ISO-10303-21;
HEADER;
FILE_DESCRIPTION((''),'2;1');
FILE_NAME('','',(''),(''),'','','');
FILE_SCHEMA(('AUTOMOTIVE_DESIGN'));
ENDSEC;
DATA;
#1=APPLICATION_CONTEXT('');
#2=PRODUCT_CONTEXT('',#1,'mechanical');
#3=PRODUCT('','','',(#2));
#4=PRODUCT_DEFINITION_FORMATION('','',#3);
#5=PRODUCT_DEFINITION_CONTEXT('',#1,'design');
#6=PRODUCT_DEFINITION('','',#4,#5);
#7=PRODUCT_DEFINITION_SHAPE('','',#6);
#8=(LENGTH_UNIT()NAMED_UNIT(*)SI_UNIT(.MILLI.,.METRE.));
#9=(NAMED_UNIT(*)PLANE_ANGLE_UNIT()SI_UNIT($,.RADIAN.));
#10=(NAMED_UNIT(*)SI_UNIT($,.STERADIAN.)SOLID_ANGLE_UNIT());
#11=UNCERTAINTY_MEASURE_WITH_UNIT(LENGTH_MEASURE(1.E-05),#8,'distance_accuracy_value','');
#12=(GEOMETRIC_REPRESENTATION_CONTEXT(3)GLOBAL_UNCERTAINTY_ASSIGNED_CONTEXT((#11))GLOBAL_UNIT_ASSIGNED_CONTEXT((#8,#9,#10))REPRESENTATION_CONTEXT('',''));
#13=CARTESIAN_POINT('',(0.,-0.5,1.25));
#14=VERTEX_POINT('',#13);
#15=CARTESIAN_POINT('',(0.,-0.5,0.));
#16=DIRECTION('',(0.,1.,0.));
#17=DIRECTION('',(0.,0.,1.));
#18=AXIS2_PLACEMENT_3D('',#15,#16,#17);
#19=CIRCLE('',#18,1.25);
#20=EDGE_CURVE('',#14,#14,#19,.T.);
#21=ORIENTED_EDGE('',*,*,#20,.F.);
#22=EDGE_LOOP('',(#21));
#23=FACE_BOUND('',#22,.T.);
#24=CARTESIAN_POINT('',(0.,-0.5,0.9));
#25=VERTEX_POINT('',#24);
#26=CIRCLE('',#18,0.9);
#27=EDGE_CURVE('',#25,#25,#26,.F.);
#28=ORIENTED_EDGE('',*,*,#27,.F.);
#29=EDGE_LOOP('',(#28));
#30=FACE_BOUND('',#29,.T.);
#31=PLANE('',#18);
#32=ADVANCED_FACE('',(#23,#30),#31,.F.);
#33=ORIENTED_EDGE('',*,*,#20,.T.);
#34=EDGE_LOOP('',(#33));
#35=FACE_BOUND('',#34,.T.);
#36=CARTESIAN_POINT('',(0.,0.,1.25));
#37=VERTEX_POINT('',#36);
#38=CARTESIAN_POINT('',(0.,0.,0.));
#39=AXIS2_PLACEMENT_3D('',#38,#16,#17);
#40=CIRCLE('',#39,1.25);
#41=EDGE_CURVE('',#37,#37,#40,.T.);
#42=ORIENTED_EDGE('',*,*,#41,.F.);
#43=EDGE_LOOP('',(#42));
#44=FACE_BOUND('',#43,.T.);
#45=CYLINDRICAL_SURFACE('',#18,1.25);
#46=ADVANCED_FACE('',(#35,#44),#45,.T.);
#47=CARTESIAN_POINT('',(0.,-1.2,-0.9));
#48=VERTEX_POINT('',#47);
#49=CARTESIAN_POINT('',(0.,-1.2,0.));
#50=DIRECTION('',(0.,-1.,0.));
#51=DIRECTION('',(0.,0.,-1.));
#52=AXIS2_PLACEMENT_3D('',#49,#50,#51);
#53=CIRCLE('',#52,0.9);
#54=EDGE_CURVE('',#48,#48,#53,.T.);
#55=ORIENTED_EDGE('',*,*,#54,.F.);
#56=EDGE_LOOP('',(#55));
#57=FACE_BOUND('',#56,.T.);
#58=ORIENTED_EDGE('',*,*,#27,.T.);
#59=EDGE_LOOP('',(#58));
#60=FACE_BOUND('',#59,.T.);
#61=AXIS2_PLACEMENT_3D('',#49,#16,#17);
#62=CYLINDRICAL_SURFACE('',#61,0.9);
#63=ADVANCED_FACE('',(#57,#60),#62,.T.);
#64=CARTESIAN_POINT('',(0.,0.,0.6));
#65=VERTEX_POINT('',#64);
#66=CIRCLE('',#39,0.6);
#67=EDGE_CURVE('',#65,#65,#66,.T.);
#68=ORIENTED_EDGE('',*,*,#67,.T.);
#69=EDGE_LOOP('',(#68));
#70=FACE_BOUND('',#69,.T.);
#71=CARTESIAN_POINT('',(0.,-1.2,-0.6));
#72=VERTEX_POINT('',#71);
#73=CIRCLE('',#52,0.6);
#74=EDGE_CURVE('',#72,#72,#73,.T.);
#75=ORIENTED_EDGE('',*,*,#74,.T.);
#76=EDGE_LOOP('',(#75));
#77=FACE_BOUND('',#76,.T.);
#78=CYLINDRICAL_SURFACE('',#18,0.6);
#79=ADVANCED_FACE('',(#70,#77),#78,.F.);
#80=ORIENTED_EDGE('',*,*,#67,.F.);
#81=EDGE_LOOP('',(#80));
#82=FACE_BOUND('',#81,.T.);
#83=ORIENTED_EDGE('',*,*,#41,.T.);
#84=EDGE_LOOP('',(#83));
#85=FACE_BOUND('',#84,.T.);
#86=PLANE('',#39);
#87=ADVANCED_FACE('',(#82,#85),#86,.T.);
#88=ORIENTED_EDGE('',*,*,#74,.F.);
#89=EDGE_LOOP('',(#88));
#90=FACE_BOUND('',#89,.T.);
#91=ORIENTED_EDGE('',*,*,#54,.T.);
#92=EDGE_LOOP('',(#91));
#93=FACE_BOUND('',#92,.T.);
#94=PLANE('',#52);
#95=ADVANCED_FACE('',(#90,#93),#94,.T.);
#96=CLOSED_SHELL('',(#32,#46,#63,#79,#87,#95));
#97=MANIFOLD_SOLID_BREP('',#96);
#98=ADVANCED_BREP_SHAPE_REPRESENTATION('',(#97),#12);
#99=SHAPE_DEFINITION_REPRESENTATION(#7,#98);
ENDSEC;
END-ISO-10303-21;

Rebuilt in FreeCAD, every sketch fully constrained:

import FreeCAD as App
import Part
import Sketcher

V = App.Vector
Q = App.Units.Quantity

doc = App.newDocument("Part")
params = doc.addObject("Spreadsheet::Sheet", "Params")
for row, (alias, value) in enumerate([
    ("sketch1_diameter", "2.5 mm"),
    ("sketch1_diameter2", "1.2 mm"),
    ("pad1_length", "0.5 mm"),
    ("sketch2_diameter", "1.8 mm"),
    ("sketch2_diameter2", "1.2 mm"),
    ("pad2_length", "0.7 mm"),
], start=1):
    params.set(f"A{row}", alias)
    params.set(f"B{row}", "=" + value)
    params.setAlias(f"B{row}", alias)

body = doc.addObject("PartDesign::Body", "Body")

# Sketch on XZ plane
sketch1 = doc.addObject("Sketcher::SketchObject", "Sketch")
body.addObject(sketch1)
sketch1.AttachmentSupport = (doc.XZ_Plane, [""])
sketch1.MapMode = "FlatFace"
sketch1.addGeometry([
    Part.Circle(V(0, 0, 0), V(0, 0, 1), 1.2),
    Part.Circle(V(0, 0, 0), V(0, 0, 1), 0.6),
], False)
sketch1.addConstraint([
    Sketcher.Constraint("Coincident", 0, 3, -1, 1),
    Sketcher.Constraint("Coincident", 1, 3, -1, 1),
    Sketcher.Constraint("Diameter", 0, Q("2.5 mm")),
    Sketcher.Constraint("Diameter", 1, Q("1.2 mm")),
])
sketch1.setExpression("Constraints[2]", "Params.sketch1_diameter")
sketch1.setExpression("Constraints[3]", "Params.sketch1_diameter2")
pad1 = doc.addObject("PartDesign::Pad", "Pad")
body.addObject(pad1)
pad1.Profile = sketch1
pad1.setExpression("Length", "Params.pad1_length")

# Sketch on XZ plane
sketch2 = doc.addObject("Sketcher::SketchObject", "Sketch001")
body.addObject(sketch2)
sketch2.AttachmentSupport = (doc.XZ_Plane, [""])
sketch2.MapMode = "FlatFace"
sketch2.AttachmentOffset = App.Placement(V(0, 0, 0.5), App.Rotation())
sketch2.addGeometry([
    Part.Circle(V(0, 0, 0), V(0, 0, 1), 0.9),
    Part.Circle(V(0, 0, 0), V(0, 0, 1), 0.6),
], False)
sketch2.addConstraint([
    Sketcher.Constraint("Coincident", 0, 3, -1, 1),
    Sketcher.Constraint("Coincident", 1, 3, -1, 1),
    Sketcher.Constraint("Diameter", 0, Q("1.8 mm")),
    Sketcher.Constraint("Diameter", 1, Q("1.2 mm")),
])
sketch2.setExpression("Constraints[2]", "Params.sketch2_diameter")
sketch2.setExpression("Constraints[3]", "Params.sketch2_diameter2")
pad2 = doc.addObject("PartDesign::Pad", "Pad001")
body.addObject(pad2)
pad2.Profile = sketch2
pad2.setExpression("Length", "Params.pad2_length")

doc.recompute()
